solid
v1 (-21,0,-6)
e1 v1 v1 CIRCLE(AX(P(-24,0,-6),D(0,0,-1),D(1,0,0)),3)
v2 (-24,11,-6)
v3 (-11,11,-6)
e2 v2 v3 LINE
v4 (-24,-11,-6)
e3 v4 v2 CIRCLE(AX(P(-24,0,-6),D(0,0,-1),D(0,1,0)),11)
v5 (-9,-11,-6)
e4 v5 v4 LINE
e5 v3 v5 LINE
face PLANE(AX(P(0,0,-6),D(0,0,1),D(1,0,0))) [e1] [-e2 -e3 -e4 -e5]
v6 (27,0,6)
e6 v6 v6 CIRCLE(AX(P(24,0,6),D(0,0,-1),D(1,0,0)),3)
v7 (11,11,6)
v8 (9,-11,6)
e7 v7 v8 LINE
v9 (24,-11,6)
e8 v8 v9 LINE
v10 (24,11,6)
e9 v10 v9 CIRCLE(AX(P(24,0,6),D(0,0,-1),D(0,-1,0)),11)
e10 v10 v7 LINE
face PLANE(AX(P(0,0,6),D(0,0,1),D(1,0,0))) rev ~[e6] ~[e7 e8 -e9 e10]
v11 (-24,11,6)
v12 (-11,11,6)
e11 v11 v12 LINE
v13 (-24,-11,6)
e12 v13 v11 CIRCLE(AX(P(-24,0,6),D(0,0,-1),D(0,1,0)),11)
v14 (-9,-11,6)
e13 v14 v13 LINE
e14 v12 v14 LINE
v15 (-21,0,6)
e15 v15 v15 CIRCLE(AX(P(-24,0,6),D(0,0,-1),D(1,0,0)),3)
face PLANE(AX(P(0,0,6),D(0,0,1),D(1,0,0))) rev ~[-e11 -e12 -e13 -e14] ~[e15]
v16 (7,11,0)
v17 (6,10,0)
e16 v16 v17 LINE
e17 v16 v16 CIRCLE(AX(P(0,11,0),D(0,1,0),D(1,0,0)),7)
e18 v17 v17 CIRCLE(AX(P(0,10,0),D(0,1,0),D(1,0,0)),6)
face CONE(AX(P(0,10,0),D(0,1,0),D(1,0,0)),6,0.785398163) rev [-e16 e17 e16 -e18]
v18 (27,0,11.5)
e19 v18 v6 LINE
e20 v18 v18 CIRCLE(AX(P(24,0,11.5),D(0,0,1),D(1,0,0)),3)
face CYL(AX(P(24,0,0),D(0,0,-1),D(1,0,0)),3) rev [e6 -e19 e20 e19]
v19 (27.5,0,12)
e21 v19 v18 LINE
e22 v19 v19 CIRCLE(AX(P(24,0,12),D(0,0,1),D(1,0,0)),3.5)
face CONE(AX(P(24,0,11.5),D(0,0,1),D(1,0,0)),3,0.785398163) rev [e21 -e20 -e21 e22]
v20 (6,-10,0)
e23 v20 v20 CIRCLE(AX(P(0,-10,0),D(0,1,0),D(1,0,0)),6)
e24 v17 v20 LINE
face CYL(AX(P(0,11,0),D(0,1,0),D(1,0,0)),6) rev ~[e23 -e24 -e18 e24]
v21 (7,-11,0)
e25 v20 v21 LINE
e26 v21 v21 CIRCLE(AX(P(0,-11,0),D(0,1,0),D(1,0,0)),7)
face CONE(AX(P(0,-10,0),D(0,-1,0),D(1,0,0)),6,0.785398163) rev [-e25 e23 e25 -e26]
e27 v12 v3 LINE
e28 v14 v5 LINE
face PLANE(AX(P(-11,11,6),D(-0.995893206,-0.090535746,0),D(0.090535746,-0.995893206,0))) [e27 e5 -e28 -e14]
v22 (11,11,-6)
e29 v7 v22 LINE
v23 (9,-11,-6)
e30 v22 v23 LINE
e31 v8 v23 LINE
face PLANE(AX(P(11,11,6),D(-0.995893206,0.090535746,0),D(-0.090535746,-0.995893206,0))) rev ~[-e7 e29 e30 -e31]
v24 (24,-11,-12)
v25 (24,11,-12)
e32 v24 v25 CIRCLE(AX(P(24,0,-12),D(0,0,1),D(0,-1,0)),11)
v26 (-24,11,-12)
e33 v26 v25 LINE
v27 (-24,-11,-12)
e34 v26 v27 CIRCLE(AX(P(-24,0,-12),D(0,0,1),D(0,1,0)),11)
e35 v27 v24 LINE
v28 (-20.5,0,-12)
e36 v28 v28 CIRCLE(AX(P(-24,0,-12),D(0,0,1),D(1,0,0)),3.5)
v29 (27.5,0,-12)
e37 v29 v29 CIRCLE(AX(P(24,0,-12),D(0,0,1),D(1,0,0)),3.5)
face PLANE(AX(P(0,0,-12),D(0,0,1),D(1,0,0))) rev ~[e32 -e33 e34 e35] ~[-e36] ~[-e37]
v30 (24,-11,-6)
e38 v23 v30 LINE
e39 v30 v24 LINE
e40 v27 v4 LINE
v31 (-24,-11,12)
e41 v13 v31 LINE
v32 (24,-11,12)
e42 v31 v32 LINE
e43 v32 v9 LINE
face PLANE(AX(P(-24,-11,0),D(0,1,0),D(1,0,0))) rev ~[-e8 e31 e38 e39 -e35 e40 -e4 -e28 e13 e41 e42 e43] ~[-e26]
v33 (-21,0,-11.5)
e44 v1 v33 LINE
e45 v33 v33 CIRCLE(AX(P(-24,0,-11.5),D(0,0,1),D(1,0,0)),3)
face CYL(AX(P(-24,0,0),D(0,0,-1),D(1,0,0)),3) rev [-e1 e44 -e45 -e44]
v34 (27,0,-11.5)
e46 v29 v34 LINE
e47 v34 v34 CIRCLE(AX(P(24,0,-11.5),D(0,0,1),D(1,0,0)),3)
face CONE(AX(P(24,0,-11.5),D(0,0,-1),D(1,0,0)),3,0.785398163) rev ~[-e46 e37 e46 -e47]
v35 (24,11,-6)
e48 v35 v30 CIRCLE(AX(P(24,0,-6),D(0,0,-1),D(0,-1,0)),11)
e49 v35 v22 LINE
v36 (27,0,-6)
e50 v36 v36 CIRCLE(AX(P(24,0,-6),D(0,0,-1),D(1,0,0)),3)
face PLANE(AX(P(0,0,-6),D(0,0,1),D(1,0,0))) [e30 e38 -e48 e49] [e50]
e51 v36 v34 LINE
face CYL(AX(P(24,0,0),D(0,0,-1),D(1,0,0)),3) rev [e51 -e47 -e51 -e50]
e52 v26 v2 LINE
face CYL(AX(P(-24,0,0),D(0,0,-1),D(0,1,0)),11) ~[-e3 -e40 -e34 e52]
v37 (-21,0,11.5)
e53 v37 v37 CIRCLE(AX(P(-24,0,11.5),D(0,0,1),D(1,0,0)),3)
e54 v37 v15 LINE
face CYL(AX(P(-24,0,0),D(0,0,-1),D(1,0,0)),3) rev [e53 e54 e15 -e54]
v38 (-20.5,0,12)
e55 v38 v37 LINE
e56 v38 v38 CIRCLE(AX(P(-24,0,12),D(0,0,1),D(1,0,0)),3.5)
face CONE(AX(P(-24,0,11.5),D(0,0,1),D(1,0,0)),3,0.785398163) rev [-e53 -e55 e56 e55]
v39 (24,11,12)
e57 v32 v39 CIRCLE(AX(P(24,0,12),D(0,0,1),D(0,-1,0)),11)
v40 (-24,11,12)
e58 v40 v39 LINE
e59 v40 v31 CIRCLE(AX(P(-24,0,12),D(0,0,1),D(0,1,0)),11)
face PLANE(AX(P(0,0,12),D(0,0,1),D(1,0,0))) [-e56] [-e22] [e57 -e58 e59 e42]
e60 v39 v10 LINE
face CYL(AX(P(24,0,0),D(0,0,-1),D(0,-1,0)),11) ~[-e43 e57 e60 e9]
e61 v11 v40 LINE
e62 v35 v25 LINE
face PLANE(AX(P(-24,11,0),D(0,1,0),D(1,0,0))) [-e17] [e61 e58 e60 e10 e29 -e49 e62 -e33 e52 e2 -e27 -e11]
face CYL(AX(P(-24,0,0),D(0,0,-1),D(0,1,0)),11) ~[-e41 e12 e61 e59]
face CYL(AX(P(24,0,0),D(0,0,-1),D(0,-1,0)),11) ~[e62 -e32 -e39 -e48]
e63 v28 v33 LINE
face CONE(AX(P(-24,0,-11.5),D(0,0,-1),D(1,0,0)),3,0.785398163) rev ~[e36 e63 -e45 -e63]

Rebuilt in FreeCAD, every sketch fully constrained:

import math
import FreeCAD as App
import Part
import Sketcher
from FreeCAD import Vector
Q = App.Units.Quantity


def edges_at(feature, points):
    """Names of the edges that pass closest to the given points."""
    edges = feature.Shape.Edges
    near = lambda p: min(range(len(edges)), key=lambda i: edges[i].distToShape(Part.Vertex(*p))[0])
    return sorted({f"Edge{near(p) + 1}" for p in points})

doc = App.newDocument("Part")
body = doc.addObject("PartDesign::Body", "Body")

sketch1 = body.newObject("Sketcher::SketchObject", "Sketch")
sketch1.AttachmentSupport = (doc.getObject("XY_Plane"), [""])
sketch1.MapMode = "FlatFace"
sketch1.addGeometry([
    Part.LineSegment(Vector(24, 11, 0), Vector(-24, 11, 0)),
    Part.ArcOfCircle(Part.Circle(Vector(-24, 0, 0), Vector(0, 0, 1), 11), math.radians(90), math.radians(270)),
    Part.LineSegment(Vector(-24, -11, 0), Vector(24, -11, 0)),
    Part.ArcOfCircle(Part.Circle(Vector(24, 0, 0), Vector(0, 0, 1), 11), math.radians(-90), math.radians(90)),
    Part.Circle(Vector(-24, 0, 0), Vector(0, 0, 1), 3),
    Part.Circle(Vector(24, 0, 0), Vector(0, 0, 1), 3),
], False)
sketch1.addConstraint([
    Sketcher.Constraint("Tangent", 0, 2, 1, 1),
    Sketcher.Constraint("Tangent", 1, 2, 2, 1),
    Sketcher.Constraint("Tangent", 2, 2, 3, 1),
    Sketcher.Constraint("Tangent", 3, 2, 0, 1),
    Sketcher.Constraint("Horizontal", 0),
    Sketcher.Constraint("Horizontal", 2),
    Sketcher.Constraint("Coincident", 4, 3, 1, 3),
    Sketcher.Constraint("Coincident", 5, 3, 3, 3),
    Sketcher.Constraint("Equal", 4, 5),
    Sketcher.Constraint("Symmetric", 1, 3, 3, 3, -1, 1),
    Sketcher.Constraint("Diameter", 4, Q("6 mm")),
    Sketcher.Constraint("Radius", 1, Q("11 mm")),
    Sketcher.Constraint("DistanceX", 0, 2, 0, 1, Q("48 mm")),
])
pad1 = body.newObject("PartDesign::Pad", "Pad")
pad1.Profile = sketch1
pad1.Length = 24
pad1.Midplane = True

sketch2 = body.newObject("Sketcher::SketchObject", "Sketch001")
sketch2.AttachmentSupport = (doc.getObject("XY_Plane"), [""])
sketch2.MapMode = "FlatFace"
sketch2.AttachmentOffset = App.Placement(Vector(0, 0, 6), App.Rotation())
sketch2.addGeometry([
    Part.LineSegment(Vector(40, 11, 0), Vector(11, 11, 0)),
    Part.LineSegment(Vector(11, 11, 0), Vector(9, -11, 0)),
    Part.LineSegment(Vector(9, -11, 0), Vector(40, -11, 0)),
    Part.LineSegment(Vector(40, -11, 0), Vector(40, 11, 0)),
    Part.LineSegment(Vector(-9, -11, 0), Vector(-11, 11, 0)),
    Part.LineSegment(Vector(-11, 11, 0), Vector(-40, 11, 0)),
    Part.LineSegment(Vector(-40, 11, 0), Vector(-40, -11, 0)),
    Part.LineSegment(Vector(-40, -11, 0), Vector(-9, -11, 0)),
], False)
sketch2.addConstraint([
    Sketcher.Constraint("Coincident", 0, 2, 1, 1),
    Sketcher.Constraint("Coincident", 1, 2, 2, 1),
    Sketcher.Constraint("Coincident", 2, 2, 3, 1),
    Sketcher.Constraint("Coincident", 3, 2, 0, 1),
    Sketcher.Constraint("Coincident", 4, 2, 5, 1),
    Sketcher.Constraint("Coincident", 5, 2, 6, 1),
    Sketcher.Constraint("Coincident", 6, 2, 7, 1),
    Sketcher.Constraint("Coincident", 7, 2, 4, 1),
    Sketcher.Constraint("Horizontal", 0),
    Sketcher.Constraint("Horizontal", 2),
    Sketcher.Constraint("Vertical", 3),
    Sketcher.Constraint("Horizontal", 5),
    Sketcher.Constraint("Vertical", 6),
    Sketcher.Constraint("Horizontal", 7),
    Sketcher.Constraint("Symmetric", 2, 2, 5, 2, -1, 1),
    Sketcher.Constraint("Symmetric", 0, 2, 4, 2, -2),
    Sketcher.Constraint("Symmetric", 1, 2, 7, 2, -2),
    Sketcher.Constraint("DistanceX", -1, 1, 0, 2, Q("11 mm")),
    Sketcher.Constraint("DistanceY", -1, 1, 0, 2, Q("11 mm")),
    Sketcher.Constraint("DistanceX", -1, 1, 1, 2, Q("9 mm")),
    Sketcher.Constraint("DistanceX", -1, 1, 2, 2, Q("40 mm")),
])
pocket1 = body.newObject("PartDesign::Pocket", "Pocket")
pocket1.Profile = sketch2
pocket1.Length = 12

sketch3 = body.newObject("Sketcher::SketchObject", "Sketch002")
sketch3.AttachmentSupport = (doc.getObject("XZ_Plane"), [""])
sketch3.MapMode = "FlatFace"
sketch3.AttachmentOffset = App.Placement(Vector(0, 0, -11), App.Rotation())
sketch3.addGeometry(Part.Circle(Vector(0, 0, 0), Vector(0, 0, 1), 6), False)
sketch3.addConstraint([
    Sketcher.Constraint("Coincident", 0, 3, -1, 1),
    Sketcher.Constraint("Diameter", 0, Q("12 mm")),
])
pocket2 = body.newObject("PartDesign::Pocket", "Pocket001")
pocket2.Profile = sketch3
pocket2.Type = "UpToFirst"
pocket2.Reversed = True
doc.recompute()

chamfer = body.newObject("PartDesign::Chamfer", "Chamfer")
chamfer.Base = (pocket2, edges_at(pocket2, [(-6, 11, 0), (-6, -11, 0)]))
chamfer.Size = 1
doc.recompute()

chamfer2 = body.newObject("PartDesign::Chamfer", "Chamfer001")
chamfer2.Base = (chamfer, edges_at(chamfer, [
    (-27, 0, 12),
    (21, 0, 12),
    (21, 0, -12),
    (-27, 0, -12),
]))
chamfer2.Size = 0.5

doc.recompute()
